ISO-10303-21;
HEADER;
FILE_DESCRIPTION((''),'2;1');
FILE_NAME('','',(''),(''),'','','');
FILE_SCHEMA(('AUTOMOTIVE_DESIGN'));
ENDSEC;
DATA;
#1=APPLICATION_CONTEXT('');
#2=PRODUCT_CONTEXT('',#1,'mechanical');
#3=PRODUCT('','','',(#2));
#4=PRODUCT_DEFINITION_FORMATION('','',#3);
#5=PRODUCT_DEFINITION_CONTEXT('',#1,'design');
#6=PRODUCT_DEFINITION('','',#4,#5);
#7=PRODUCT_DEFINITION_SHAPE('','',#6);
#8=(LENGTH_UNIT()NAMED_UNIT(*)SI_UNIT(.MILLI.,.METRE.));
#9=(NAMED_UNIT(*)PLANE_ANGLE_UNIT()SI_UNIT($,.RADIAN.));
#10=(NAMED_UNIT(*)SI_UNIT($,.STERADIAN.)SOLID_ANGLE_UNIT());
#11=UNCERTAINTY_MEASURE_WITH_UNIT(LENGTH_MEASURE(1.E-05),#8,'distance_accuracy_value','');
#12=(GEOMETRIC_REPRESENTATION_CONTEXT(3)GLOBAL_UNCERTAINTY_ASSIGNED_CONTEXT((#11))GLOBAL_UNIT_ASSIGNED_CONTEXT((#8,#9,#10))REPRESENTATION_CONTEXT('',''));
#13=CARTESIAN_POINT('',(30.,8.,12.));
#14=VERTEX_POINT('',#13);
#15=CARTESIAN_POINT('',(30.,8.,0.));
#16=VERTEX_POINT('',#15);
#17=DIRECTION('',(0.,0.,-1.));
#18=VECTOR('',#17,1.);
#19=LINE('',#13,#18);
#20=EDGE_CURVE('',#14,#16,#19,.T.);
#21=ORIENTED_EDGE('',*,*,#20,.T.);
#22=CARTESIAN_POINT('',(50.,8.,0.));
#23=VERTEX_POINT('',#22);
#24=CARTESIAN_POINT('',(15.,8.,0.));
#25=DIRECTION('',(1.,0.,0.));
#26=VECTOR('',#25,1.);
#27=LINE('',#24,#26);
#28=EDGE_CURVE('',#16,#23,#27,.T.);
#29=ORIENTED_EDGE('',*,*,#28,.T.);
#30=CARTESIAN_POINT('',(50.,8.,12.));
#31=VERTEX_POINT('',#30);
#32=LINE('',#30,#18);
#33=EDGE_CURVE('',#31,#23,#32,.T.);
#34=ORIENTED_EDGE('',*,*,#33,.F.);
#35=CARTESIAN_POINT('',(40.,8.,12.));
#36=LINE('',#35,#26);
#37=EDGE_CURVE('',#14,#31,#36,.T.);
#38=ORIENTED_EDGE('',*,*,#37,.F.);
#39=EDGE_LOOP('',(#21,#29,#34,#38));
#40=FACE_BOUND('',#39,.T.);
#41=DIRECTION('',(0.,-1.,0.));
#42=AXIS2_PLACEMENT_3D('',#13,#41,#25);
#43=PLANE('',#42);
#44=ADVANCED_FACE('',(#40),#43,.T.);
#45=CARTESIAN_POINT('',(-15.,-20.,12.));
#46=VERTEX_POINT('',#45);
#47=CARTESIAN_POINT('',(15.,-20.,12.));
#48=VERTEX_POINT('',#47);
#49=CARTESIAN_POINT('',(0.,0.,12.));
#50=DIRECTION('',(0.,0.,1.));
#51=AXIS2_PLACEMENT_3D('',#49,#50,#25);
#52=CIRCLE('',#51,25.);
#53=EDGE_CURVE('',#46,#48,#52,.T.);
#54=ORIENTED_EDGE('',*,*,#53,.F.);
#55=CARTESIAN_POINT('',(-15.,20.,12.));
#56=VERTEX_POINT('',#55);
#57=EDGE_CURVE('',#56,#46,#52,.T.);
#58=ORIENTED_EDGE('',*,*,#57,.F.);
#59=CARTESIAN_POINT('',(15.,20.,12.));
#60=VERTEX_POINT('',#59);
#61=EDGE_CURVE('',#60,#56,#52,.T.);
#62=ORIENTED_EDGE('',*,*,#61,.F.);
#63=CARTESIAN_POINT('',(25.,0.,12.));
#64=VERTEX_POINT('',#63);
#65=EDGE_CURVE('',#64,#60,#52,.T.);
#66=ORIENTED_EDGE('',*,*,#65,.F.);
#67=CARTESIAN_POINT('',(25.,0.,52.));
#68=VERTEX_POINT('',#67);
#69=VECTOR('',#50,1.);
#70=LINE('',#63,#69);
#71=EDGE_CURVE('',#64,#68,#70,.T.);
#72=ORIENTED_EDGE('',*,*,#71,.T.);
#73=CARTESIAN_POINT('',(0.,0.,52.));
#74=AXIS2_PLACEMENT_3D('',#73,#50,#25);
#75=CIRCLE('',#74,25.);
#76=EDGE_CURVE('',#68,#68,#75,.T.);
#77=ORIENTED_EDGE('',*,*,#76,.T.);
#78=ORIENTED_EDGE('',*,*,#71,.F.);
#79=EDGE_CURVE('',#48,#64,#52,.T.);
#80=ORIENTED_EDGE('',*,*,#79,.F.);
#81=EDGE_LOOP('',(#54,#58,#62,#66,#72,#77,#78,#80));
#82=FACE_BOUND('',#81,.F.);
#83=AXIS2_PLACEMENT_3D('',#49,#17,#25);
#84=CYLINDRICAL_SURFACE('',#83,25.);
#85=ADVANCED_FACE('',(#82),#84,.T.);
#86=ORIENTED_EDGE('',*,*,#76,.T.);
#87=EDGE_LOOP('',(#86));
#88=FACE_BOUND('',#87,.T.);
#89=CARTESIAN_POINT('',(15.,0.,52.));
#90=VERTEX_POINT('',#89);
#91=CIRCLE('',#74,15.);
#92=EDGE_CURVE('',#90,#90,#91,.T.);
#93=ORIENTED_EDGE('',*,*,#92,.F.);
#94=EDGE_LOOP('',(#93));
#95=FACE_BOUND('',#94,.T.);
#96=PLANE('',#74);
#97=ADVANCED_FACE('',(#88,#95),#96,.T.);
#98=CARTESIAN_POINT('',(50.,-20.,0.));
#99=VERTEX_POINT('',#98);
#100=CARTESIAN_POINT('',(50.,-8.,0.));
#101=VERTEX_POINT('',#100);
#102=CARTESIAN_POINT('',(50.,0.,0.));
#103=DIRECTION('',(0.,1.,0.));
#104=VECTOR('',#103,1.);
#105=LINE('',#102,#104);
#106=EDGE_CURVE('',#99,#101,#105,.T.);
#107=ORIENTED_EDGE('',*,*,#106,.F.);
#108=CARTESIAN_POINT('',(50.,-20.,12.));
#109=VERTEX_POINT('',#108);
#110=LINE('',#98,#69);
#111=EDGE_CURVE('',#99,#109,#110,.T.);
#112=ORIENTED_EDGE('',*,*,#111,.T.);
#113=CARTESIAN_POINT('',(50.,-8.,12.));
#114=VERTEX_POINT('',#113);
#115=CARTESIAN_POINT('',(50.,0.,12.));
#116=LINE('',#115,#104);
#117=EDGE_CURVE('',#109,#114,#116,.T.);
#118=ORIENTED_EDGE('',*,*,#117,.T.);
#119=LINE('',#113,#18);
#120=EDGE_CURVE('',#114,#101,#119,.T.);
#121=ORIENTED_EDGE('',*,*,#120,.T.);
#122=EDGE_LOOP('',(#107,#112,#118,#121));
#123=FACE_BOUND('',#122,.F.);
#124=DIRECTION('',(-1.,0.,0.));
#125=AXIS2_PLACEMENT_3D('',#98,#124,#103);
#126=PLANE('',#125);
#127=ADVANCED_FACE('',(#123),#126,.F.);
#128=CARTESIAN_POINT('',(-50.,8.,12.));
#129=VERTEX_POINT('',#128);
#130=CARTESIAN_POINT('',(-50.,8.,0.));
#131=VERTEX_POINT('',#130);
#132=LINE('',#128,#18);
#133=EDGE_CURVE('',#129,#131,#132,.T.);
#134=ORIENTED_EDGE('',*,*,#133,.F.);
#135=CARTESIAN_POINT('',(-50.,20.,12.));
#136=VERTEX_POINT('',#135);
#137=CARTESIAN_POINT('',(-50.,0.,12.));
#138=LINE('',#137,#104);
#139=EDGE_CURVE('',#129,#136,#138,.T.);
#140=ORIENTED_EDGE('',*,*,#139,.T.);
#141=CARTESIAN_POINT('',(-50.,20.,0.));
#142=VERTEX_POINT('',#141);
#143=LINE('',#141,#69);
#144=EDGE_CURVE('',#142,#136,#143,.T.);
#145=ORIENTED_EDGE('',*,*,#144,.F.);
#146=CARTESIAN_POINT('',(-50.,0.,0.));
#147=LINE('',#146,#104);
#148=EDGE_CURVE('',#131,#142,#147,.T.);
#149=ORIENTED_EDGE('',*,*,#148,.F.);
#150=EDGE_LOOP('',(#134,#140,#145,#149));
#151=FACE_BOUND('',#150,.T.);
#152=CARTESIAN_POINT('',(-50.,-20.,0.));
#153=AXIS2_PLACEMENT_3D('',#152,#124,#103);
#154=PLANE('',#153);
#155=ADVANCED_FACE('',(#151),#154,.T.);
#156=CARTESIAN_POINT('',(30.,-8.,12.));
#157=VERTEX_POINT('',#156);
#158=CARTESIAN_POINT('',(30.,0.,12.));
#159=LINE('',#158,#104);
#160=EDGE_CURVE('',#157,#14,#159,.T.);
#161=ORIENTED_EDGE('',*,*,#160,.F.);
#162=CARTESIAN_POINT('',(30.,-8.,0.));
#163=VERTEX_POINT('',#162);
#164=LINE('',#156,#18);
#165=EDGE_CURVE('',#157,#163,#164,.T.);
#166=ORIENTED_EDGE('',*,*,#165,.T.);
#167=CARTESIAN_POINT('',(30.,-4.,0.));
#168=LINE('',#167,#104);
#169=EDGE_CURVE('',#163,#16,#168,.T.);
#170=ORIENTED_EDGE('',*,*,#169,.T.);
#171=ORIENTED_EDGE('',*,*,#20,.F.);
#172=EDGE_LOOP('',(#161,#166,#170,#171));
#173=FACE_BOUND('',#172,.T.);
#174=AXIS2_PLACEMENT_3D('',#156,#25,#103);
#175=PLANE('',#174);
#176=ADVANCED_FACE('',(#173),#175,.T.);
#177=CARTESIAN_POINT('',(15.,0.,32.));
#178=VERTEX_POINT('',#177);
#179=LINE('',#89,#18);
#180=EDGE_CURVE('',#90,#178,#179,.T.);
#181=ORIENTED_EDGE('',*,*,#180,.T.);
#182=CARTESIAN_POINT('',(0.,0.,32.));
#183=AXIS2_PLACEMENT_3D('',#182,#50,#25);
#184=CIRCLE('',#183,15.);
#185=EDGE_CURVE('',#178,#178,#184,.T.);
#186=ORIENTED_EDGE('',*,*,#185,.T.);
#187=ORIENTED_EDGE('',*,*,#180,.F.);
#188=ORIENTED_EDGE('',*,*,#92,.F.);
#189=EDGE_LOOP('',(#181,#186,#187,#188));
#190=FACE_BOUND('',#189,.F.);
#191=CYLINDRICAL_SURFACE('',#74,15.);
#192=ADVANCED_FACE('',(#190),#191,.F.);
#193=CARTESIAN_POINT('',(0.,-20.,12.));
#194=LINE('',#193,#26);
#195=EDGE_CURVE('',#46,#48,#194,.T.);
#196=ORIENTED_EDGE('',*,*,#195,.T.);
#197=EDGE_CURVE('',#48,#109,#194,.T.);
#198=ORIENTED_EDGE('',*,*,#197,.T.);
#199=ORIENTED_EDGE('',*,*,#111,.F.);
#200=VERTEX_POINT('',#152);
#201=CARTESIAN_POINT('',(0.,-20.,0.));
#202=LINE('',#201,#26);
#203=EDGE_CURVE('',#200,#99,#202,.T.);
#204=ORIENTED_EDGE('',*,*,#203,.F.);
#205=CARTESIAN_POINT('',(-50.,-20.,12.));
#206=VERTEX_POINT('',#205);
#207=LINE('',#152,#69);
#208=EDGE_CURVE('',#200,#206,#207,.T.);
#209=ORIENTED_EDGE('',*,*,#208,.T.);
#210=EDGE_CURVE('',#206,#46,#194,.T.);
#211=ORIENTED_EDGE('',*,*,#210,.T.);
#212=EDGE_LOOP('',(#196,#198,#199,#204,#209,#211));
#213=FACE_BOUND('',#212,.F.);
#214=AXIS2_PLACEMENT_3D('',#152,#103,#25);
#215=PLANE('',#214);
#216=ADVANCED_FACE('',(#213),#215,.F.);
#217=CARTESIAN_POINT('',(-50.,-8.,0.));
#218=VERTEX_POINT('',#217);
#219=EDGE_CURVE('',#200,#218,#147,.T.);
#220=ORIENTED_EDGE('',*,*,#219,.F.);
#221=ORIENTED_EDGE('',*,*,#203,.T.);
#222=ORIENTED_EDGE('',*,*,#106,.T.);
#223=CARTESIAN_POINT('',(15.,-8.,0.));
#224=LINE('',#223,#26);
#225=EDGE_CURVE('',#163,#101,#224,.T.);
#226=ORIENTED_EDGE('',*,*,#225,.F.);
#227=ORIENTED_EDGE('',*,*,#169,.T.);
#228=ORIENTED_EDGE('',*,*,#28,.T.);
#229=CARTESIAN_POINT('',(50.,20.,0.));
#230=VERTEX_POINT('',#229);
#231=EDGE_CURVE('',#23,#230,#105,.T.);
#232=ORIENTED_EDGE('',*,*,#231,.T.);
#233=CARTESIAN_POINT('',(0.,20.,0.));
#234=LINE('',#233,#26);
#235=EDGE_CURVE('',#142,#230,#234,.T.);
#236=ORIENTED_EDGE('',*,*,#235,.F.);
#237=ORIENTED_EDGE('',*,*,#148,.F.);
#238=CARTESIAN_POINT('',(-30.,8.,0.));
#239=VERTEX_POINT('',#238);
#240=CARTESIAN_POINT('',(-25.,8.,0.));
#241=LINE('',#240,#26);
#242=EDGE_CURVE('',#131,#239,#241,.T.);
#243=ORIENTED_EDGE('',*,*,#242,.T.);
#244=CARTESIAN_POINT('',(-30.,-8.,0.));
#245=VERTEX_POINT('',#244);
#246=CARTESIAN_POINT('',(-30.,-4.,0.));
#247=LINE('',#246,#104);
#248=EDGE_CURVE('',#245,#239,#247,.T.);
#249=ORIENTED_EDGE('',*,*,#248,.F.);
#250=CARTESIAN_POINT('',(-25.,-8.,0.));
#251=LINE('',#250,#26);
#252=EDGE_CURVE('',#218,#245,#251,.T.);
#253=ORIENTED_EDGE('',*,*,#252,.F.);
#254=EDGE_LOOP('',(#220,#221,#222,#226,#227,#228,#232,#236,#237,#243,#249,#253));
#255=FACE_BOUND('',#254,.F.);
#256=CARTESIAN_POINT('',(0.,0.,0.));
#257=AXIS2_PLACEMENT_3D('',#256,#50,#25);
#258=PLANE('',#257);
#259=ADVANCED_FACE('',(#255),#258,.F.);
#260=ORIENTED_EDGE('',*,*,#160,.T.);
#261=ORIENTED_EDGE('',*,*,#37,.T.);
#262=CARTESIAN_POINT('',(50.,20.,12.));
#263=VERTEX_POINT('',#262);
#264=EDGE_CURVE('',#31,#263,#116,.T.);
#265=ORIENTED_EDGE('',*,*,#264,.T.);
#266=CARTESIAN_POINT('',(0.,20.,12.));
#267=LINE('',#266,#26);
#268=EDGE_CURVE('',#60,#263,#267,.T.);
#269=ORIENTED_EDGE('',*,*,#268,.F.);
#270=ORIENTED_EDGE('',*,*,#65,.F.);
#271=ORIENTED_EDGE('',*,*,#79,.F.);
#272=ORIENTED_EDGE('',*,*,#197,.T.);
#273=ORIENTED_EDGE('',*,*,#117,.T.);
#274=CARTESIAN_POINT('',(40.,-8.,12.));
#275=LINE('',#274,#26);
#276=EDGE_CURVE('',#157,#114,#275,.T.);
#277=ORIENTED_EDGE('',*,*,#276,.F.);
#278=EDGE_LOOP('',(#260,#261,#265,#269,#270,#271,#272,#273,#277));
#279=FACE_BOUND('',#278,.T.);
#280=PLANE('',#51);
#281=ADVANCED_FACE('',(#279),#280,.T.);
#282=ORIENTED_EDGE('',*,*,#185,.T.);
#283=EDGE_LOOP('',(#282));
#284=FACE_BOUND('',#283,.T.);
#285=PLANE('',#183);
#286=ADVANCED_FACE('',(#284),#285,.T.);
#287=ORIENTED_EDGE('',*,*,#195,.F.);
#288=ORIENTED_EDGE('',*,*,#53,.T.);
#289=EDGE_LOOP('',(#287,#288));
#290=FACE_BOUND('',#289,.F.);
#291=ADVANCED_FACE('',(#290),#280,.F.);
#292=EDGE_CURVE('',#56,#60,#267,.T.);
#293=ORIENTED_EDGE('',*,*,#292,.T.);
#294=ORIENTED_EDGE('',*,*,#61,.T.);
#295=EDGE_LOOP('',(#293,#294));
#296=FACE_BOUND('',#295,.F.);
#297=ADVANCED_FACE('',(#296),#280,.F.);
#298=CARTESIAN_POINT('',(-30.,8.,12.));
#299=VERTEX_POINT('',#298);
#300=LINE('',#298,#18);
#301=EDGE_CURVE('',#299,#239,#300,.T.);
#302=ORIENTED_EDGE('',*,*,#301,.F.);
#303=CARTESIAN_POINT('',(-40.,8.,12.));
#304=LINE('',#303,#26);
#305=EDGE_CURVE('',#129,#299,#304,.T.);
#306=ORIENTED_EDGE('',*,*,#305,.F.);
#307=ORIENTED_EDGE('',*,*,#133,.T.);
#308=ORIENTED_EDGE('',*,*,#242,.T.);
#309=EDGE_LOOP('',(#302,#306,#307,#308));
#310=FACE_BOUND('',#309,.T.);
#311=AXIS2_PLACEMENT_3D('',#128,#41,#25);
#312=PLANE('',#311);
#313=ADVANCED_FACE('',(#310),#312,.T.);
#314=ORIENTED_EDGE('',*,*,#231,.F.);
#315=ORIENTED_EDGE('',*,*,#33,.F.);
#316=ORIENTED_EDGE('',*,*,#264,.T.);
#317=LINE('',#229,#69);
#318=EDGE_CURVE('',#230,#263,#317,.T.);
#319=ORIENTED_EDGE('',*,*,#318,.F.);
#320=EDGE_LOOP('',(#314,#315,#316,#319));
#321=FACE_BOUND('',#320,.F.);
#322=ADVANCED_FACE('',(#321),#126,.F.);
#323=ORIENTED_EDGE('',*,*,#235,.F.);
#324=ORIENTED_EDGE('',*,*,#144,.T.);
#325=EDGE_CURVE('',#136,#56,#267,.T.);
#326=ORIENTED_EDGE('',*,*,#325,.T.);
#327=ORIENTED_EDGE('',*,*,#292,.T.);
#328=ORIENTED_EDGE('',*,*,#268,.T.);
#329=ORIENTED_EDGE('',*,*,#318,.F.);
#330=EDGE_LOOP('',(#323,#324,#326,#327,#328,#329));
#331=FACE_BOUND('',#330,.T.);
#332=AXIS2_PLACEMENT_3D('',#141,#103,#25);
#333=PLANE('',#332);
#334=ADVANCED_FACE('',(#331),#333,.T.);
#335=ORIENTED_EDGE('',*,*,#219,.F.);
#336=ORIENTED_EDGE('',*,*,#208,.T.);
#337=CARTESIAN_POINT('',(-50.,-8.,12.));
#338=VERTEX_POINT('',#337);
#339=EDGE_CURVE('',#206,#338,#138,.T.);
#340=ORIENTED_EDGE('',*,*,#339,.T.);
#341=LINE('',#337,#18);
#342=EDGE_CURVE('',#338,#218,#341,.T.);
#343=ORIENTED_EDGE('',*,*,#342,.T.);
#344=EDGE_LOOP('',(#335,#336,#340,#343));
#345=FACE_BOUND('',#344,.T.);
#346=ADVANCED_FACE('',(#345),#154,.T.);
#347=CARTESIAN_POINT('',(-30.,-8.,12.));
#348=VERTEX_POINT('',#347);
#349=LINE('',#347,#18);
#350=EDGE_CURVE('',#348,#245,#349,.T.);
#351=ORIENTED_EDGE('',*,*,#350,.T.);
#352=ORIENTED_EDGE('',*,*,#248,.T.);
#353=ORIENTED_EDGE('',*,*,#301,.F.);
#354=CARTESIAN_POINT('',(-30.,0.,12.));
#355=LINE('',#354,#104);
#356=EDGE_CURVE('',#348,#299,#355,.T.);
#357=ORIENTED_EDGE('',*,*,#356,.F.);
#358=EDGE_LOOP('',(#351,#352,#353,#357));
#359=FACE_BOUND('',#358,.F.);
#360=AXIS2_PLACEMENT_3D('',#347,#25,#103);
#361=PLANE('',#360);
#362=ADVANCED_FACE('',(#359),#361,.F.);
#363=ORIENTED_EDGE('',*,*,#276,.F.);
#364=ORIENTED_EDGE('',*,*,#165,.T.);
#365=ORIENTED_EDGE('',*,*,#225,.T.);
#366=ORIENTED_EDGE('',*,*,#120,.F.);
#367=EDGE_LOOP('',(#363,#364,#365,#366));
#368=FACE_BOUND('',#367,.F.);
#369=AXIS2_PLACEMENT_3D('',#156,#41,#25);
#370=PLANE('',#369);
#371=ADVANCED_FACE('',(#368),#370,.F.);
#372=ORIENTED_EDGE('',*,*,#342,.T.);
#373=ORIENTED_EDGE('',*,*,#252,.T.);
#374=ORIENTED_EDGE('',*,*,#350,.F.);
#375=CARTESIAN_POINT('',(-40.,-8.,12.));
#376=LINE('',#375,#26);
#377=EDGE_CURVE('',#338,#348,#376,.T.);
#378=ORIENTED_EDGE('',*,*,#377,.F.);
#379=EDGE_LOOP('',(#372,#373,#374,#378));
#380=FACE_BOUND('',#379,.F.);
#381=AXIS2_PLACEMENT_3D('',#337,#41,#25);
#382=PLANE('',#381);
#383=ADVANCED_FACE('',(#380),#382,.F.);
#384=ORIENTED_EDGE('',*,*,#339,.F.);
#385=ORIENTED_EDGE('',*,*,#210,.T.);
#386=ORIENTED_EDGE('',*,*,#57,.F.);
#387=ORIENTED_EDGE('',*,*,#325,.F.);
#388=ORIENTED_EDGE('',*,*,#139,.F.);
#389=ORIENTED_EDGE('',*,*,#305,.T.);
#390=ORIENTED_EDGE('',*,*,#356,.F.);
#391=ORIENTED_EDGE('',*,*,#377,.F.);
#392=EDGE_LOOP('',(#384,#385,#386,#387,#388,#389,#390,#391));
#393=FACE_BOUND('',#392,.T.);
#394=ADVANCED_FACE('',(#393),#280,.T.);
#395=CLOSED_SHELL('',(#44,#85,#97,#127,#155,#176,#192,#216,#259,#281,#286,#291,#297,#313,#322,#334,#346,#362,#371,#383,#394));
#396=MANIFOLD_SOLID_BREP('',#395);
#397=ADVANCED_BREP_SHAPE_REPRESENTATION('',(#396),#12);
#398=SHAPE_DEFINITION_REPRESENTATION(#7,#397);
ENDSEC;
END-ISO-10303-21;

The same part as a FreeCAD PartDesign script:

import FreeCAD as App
import Part
import Sketcher
from FreeCAD import Vector

doc = App.newDocument("Part")
body = doc.addObject("PartDesign::Body", "Body")

# Sketch on XY plane
sketch1 = doc.addObject("Sketcher::SketchObject", "Sketch")
body.addObject(sketch1)
sketch1.AttachmentSupport = (doc.XY_Plane, [""])
sketch1.MapMode = "FlatFace"
sketch1.addGeometry(Part.LineSegment(Vector(-50, 20, 0), Vector(-50, -20, 0)), False)
sketch1.addGeometry(Part.LineSegment(Vector(-50, -20, 0), Vector(50, -20, 0)), False)
sketch1.addGeometry(Part.LineSegment(Vector(50, -20, 0), Vector(50, 20, 0)), False)
sketch1.addGeometry(Part.LineSegment(Vector(50, 20, 0), Vector(-50, 20, 0)), False)
sketch1.addConstraint(Sketcher.Constraint("Coincident", 0, 2, 1, 1))
sketch1.addConstraint(Sketcher.Constraint("Coincident", 1, 2, 2, 1))
sketch1.addConstraint(Sketcher.Constraint("Coincident", 2, 2, 3, 1))
sketch1.addConstraint(Sketcher.Constraint("Coincident", 3, 2, 0, 1))
sketch1.addConstraint(Sketcher.Constraint("Vertical", 0))
sketch1.addConstraint(Sketcher.Constraint("Horizontal", 1))
sketch1.addConstraint(Sketcher.Constraint("Vertical", 2))
sketch1.addConstraint(Sketcher.Constraint("Horizontal", 3))
sketch1.addConstraint(Sketcher.Constraint("Symmetric", 0, 2, 2, 2, -1, 1))
sketch1.addConstraint(Sketcher.Constraint("DistanceX", 1, 1, 1, 2, 100.0))
sketch1.addConstraint(Sketcher.Constraint("DistanceY", 0, 2, 0, 1, 40.0))
pad1 = doc.addObject("PartDesign::Pad", "Pad")
body.addObject(pad1)
pad1.Profile = sketch1
pad1.Length = 12

# Sketch on XY plane
sketch2 = doc.addObject("Sketcher::SketchObject", "Sketch001")
body.addObject(sketch2)
sketch2.AttachmentSupport = (doc.XY_Plane, [""])
sketch2.MapMode = "FlatFace"
sketch2.AttachmentOffset = App.Placement(Vector(0, 0, 12), App.Rotation())
sketch2.addGeometry(Part.LineSegment(Vector(-50, 8, 0), Vector(-50, -8, 0)), False)
sketch2.addGeometry(Part.LineSegment(Vector(-50, -8, 0), Vector(-30, -8, 0)), False)
sketch2.addGeometry(Part.LineSegment(Vector(-30, -8, 0), Vector(-30, 8, 0)), False)
sketch2.addGeometry(Part.LineSegment(Vector(-30, 8, 0), Vector(-50, 8, 0)), False)
sketch2.addGeometry(Part.LineSegment(Vector(30, 8, 0), Vector(30, -8, 0)), False)
sketch2.addGeometry(Part.LineSegment(Vector(30, -8, 0), Vector(50, -8, 0)), False)
sketch2.addGeometry(Part.LineSegment(Vector(50, -8, 0), Vector(50, 8, 0)), False)
sketch2.addGeometry(Part.LineSegment(Vector(50, 8, 0), Vector(30, 8, 0)), False)
sketch2.addConstraint(Sketcher.Constraint("Coincident", 0, 2, 1, 1))
sketch2.addConstraint(Sketcher.Constraint("Coincident", 1, 2, 2, 1))
sketch2.addConstraint(Sketcher.Constraint("Coincident", 2, 2, 3, 1))
sketch2.addConstraint(Sketcher.Constraint("Coincident", 3, 2, 0, 1))
sketch2.addConstraint(Sketcher.Constraint("Coincident", 4, 2, 5, 1))
sketch2.addConstraint(Sketcher.Constraint("Coincident", 5, 2, 6, 1))
sketch2.addConstraint(Sketcher.Constraint("Coincident", 6, 2, 7, 1))
sketch2.addConstraint(Sketcher.Constraint("Coincident", 7, 2, 4, 1))
sketch2.addConstraint(Sketcher.Constraint("Vertical", 0))
sketch2.addConstraint(Sketcher.Constraint("Horizontal", 1))
sketch2.addConstraint(Sketcher.Constraint("Vertical", 2))
sketch2.addConstraint(Sketcher.Constraint("Horizontal", 3))
sketch2.addConstraint(Sketcher.Constraint("Vertical", 4))
sketch2.addConstraint(Sketcher.Constraint("Horizontal", 5))
sketch2.addConstraint(Sketcher.Constraint("Vertical", 6))
sketch2.addConstraint(Sketcher.Constraint("Horizontal", 7))
sketch2.addConstraint(Sketcher.Constraint("Symmetric", 2, 2, 4, 2, -1, 1))
sketch2.addConstraint(Sketcher.Constraint("Symmetric", 0, 2, 6, 2, -1, 1))
sketch2.addConstraint(Sketcher.Constraint("Horizontal", 1, 2, 4, 2))
sketch2.addConstraint(Sketcher.Constraint("DistanceX", 1, 1, 1, 2, 20.0))
sketch2.addConstraint(Sketcher.Constraint("DistanceY", 0, 2, 0, 1, 16.0))
sketch2.addConstraint(Sketcher.Constraint("DistanceX", 0, 2, -1, 1, 50.0))
pocket1 = doc.addObject("PartDesign::Pocket", "Pocket")
body.addObject(pocket1)
pocket1.Profile = sketch2
pocket1.Type = "ThroughAll"

# Sketch on XY plane
sketch3 = doc.addObject("Sketcher::SketchObject", "Sketch002")
body.addObject(sketch3)
sketch3.AttachmentSupport = (doc.XY_Plane, [""])
sketch3.MapMode = "FlatFace"
sketch3.AttachmentOffset = App.Placement(Vector(0, 0, 12), App.Rotation())
sketch3.addGeometry(Part.Circle(Vector(0, 0, 0), Vector(0, 0, 1), 25), False)
sketch3.addConstraint(Sketcher.Constraint("Coincident", 0, 3, -1, 1))
sketch3.addConstraint(Sketcher.Constraint("Diameter", 0, 50.0))
pad2 = doc.addObject("PartDesign::Pad", "Pad001")
body.addObject(pad2)
pad2.Profile = sketch3
pad2.Length = 40

# Sketch on XY plane
sketch4 = doc.addObject("Sketcher::SketchObject", "Sketch003")
body.addObject(sketch4)
sketch4.AttachmentSupport = (doc.XY_Plane, [""])
sketch4.MapMode = "FlatFace"
sketch4.AttachmentOffset = App.Placement(Vector(0, 0, 52), App.Rotation())
sketch4.addGeometry(Part.Circle(Vector(0, 0, 0), Vector(0, 0, 1), 15), False)
sketch4.addConstraint(Sketcher.Constraint("Coincident", 0, 3, -1, 1))
sketch4.addConstraint(Sketcher.Constraint("Diameter", 0, 30.0))
pocket2 = doc.addObject("PartDesign::Pocket", "Pocket001")
body.addObject(pocket2)
pocket2.Profile = sketch4
pocket2.Length = 20

doc.recompute()
